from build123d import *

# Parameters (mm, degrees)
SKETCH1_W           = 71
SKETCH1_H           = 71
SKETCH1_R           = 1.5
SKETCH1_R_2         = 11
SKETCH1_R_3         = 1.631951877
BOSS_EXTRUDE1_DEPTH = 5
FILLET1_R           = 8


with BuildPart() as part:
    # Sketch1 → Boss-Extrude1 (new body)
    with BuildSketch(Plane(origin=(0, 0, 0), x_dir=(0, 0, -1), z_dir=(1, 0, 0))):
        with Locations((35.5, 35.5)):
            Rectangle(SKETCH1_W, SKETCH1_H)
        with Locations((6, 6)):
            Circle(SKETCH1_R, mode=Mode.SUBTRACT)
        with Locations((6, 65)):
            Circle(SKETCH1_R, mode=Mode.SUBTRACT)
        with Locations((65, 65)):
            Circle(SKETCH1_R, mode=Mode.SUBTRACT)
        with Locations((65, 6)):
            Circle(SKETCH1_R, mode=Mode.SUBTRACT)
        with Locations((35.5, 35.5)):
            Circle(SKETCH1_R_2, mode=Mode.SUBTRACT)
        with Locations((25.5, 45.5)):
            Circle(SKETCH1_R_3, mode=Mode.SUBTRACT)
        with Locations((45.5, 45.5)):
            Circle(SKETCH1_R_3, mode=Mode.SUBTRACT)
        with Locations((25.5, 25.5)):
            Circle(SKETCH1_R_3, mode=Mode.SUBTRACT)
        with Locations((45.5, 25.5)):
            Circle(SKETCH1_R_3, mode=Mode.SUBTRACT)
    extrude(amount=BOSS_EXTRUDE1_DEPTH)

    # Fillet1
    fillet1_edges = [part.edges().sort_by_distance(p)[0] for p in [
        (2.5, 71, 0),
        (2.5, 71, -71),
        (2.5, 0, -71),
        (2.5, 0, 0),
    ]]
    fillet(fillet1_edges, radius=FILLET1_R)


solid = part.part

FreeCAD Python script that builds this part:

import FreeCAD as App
import Part
import Sketcher
from FreeCAD import Vector
Q = App.Units.Quantity


def edges_at(feature, points):
    """Names of the edges that pass closest to the given points."""
    edges = feature.Shape.Edges
    near = lambda p: min(range(len(edges)), key=lambda i: edges[i].distToShape(Part.Vertex(*p))[0])
    return sorted({f"Edge{near(p) + 1}" for p in points})

doc = App.newDocument("Part")
params = doc.addObject("Spreadsheet::Sheet", "Params")
for row, (alias, value) in enumerate([
    ("sketch1_diameter", "3 mm"),
    ("sketch1_diameter2", "22 mm"),
    ("sketch1_width", "71 mm"),
    ("pad1_length", "5 mm"),
    ("fillet_radius", "8 mm"),
], start=1):
    params.set(f"A{row}", alias)
    params.set(f"B{row}", "=" + value)
    params.setAlias(f"B{row}", alias)

body = doc.addObject("PartDesign::Body", "Body")

# Sketch on YZ plane
sketch1 = body.newObject("Sketcher::SketchObject", "Sketch")
sketch1.AttachmentSupport = (doc.getObject("YZ_Plane"), [""])
sketch1.MapMode = "FlatFace"
sketch1.addGeometry(Part.LineSegment(Vector(71, 0, 0), Vector(0, 0, 0)), False)
sketch1.addGeometry(Part.LineSegment(Vector(0, 0, 0), Vector(0, -71, 0)), False)
sketch1.addGeometry(Part.LineSegment(Vector(0, -71, 0), Vector(71, -71, 0)), False)
sketch1.addGeometry(Part.LineSegment(Vector(71, -71, 0), Vector(71, 0, 0)), False)
sketch1.addGeometry(Part.Circle(Vector(6, -6, 0), Vector(0, 0, 1), 1.5), False)
sketch1.addGeometry(Part.Circle(Vector(25.5, -25.5, 0), Vector(0, 0, 1), 1.6), False)
sketch1.addGeometry(Part.Circle(Vector(6, -65, 0), Vector(0, 0, 1), 1.5), False)
sketch1.addGeometry(Part.Circle(Vector(25.5, -45.5, 0), Vector(0, 0, 1), 1.6), False)
sketch1.addGeometry(Part.Circle(Vector(45.5, -25.5, 0), Vector(0, 0, 1), 1.6), False)
sketch1.addGeometry(Part.Circle(Vector(65, -6, 0), Vector(0, 0, 1), 1.5), False)
sketch1.addGeometry(Part.Circle(Vector(35.5, -35.5, 0), Vector(0, 0, 1), 11), False)
sketch1.addGeometry(Part.Circle(Vector(45.5, -45.5, 0), Vector(0, 0, 1), 1.6), False)
sketch1.addGeometry(Part.Circle(Vector(65, -65, 0), Vector(0, 0, 1), 1.5), False)
sketch1.addConstraint(Sketcher.Constraint("Coincident", 0, 2, 1, 1))
sketch1.addConstraint(Sketcher.Constraint("Coincident", 1, 2, 2, 1))
sketch1.addConstraint(Sketcher.Constraint("Coincident", 2, 2, 3, 1))
sketch1.addConstraint(Sketcher.Constraint("Coincident", 3, 2, 0, 1))
sketch1.addConstraint(Sketcher.Constraint("Horizontal", 0))
sketch1.addConstraint(Sketcher.Constraint("Vertical", 1))
sketch1.addConstraint(Sketcher.Constraint("Horizontal", 2))
sketch1.addConstraint(Sketcher.Constraint("Vertical", 3))
sketch1.addConstraint(Sketcher.Constraint("Coincident", 0, 2, -1, 1))
sketch1.addConstraint(Sketcher.Constraint("Equal", 4, 6))
sketch1.addConstraint(Sketcher.Constraint("Equal", 5, 7))
sketch1.addConstraint(Sketcher.Constraint("Equal", 7, 8))
sketch1.addConstraint(Sketcher.Constraint("Equal", 6, 9))
sketch1.addConstraint(Sketcher.Constraint("Equal", 8, 11))
sketch1.addConstraint(Sketcher.Constraint("Equal", 9, 12))
sketch1.addConstraint(Sketcher.Constraint("Horizontal", 5, 3, 8, 3))
sketch1.addConstraint(Sketcher.Constraint("Horizontal", 4, 3, 9, 3))
sketch1.addConstraint(Sketcher.Constraint("Horizontal", 7, 3, 11, 3))
sketch1.addConstraint(Sketcher.Constraint("Horizontal", 6, 3, 12, 3))
sketch1.addConstraint(Sketcher.Constraint("Vertical", 4, 3, 6, 3))
sketch1.addConstraint(Sketcher.Constraint("Vertical", 5, 3, 7, 3))
sketch1.addConstraint(Sketcher.Constraint("Vertical", 8, 3, 11, 3))
sketch1.addConstraint(Sketcher.Constraint("Vertical", 9, 3, 12, 3))
sketch1.addConstraint(Sketcher.Constraint("Equal", 2, 1))
sketch1.addConstraint(Sketcher.Constraint("Diameter", 4, Q("3 mm")))
sketch1.addConstraint(Sketcher.Constraint("Diameter", 10, Q("22 mm")))
sketch1.addConstraint(Sketcher.Constraint("DistanceX", 0, 2, 0, 1, Q("71 mm")))
sketch1.addConstraint(Sketcher.Constraint("DistanceX", -1, 1, 4, 3, Q("6 mm")))
sketch1.addConstraint(Sketcher.Constraint("DistanceY", 4, 3, -1, 1, Q("6 mm")))
sketch1.addConstraint(Sketcher.Constraint("DistanceY", 6, 3, -1, 1, Q("65 mm")))
sketch1.addConstraint(Sketcher.Constraint("DistanceX", -1, 1, 9, 3, Q("65 mm")))
sketch1.addConstraint(Sketcher.Constraint("DistanceY", 7, 3, 5, 3, Q("20 mm")))
sketch1.addConstraint(Sketcher.Constraint("DistanceX", 5, 3, 8, 3, Q("20 mm")))
sketch1.addConstraint(Sketcher.Constraint("DistanceX", 5, 3, 10, 3, Q("10 mm")))
sketch1.addConstraint(Sketcher.Constraint("DistanceY", 10, 3, 5, 3, Q("10 mm")))
sketch1.addConstraint(Sketcher.Constraint("DistanceX", -1, 1, 5, 3, Q("25.5 mm")))
sketch1.addConstraint(Sketcher.Constraint("DistanceY", 5, 3, -1, 1, Q("25.5 mm")))
sketch1.addConstraint(Sketcher.Constraint("Diameter", 5, Q("3.263904 mm")))
sketch1.setExpression("Constraints[24]", "Params.sketch1_diameter")
sketch1.setExpression("Constraints[25]", "Params.sketch1_diameter2")
sketch1.setExpression("Constraints[26]", "Params.sketch1_width")
pad1 = body.newObject("PartDesign::Pad", "Pad")
pad1.Profile = sketch1
pad1.setExpression("Length", "Params.pad1_length")
doc.recompute()

fillet = body.newObject("PartDesign::Fillet", "Fillet")
fillet.Base = (pad1, edges_at(pad1, [
    (2.5, 71, 0),
    (2.5, 71, -71),
    (2.5, 0, -71),
    (2.5, 0, 0),
]))
fillet.setExpression("Radius", "Params.fillet_radius")

doc.recompute()
